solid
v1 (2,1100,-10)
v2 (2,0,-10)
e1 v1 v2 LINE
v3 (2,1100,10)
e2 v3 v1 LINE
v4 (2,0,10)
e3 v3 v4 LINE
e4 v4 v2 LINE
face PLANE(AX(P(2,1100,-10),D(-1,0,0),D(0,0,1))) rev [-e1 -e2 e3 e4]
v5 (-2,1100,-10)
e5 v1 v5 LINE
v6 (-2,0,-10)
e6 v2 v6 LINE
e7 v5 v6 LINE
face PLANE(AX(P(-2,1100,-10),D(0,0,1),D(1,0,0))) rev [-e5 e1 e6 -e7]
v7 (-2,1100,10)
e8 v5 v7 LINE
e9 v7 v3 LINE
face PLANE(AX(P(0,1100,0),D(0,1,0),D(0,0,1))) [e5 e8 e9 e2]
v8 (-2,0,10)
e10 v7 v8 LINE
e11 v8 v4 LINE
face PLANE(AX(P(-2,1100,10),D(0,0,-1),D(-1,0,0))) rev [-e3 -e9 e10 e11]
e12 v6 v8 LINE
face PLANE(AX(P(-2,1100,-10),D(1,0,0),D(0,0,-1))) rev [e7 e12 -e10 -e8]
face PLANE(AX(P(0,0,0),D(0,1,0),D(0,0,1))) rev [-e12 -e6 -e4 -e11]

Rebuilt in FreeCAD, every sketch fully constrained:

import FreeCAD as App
import Part
import Sketcher

V = App.Vector


def add_polygon(sketch, points):
    """Adds a closed chain of lines whose ends are joined by coincident constraints."""
    first, n = sketch.GeometryCount, len(points)
    for a, b in zip(points, points[1:] + points[:1]):
        sketch.addGeometry(Part.LineSegment(App.Vector(*a, 0), App.Vector(*b, 0)), False)
    for i in range(n):
        sketch.addConstraint(Sketcher.Constraint("Coincident", first + i, 2, first + (i + 1) % n, 1))

doc = App.newDocument("Part")
params = doc.addObject("Spreadsheet::Sheet", "Params")
for row, (alias, value) in enumerate([
    ("sketch1_width", "4 mm"),
    ("sketch1_height", "20 mm"),
    ("pad1_length", "1100 mm"),
], start=1):
    params.set(f"A{row}", alias)
    params.set(f"B{row}", "=" + value)
    params.setAlias(f"B{row}", alias)

body = doc.addObject("PartDesign::Body", "Body")

# Sketch on XZ plane
sketch1 = doc.addObject("Sketcher::SketchObject", "Sketch")
body.addObject(sketch1)
sketch1.AttachmentSupport = (doc.XZ_Plane, [""])
sketch1.MapMode = "FlatFace"
add_polygon(sketch1, [(-2, -10), (-2, 10), (2, 10), (2, -10)])  # lines 0-3
sketch1.addConstraint(Sketcher.Constraint("Vertical", 0))
sketch1.addConstraint(Sketcher.Constraint("Horizontal", 1))
sketch1.addConstraint(Sketcher.Constraint("Vertical", 2))
sketch1.addConstraint(Sketcher.Constraint("Horizontal", 3))
sketch1.addConstraint(Sketcher.Constraint("Symmetric", 0, 2, 2, 2, -1, 1))
sketch1.addConstraint(Sketcher.Constraint("DistanceX", 1, 1, 1, 2, 4.0))
sketch1.addConstraint(Sketcher.Constraint("DistanceY", 0, 1, 0, 2, 20.0))
sketch1.setExpression("Constraints[9]", "Params.sketch1_width")
sketch1.setExpression("Constraints[10]", "Params.sketch1_height")
pad1 = doc.addObject("PartDesign::Pad", "Pad")
body.addObject(pad1)
pad1.Profile = sketch1
pad1.setExpression("Length", "Params.pad1_length")
pad1.Reversed = True

doc.recompute()
